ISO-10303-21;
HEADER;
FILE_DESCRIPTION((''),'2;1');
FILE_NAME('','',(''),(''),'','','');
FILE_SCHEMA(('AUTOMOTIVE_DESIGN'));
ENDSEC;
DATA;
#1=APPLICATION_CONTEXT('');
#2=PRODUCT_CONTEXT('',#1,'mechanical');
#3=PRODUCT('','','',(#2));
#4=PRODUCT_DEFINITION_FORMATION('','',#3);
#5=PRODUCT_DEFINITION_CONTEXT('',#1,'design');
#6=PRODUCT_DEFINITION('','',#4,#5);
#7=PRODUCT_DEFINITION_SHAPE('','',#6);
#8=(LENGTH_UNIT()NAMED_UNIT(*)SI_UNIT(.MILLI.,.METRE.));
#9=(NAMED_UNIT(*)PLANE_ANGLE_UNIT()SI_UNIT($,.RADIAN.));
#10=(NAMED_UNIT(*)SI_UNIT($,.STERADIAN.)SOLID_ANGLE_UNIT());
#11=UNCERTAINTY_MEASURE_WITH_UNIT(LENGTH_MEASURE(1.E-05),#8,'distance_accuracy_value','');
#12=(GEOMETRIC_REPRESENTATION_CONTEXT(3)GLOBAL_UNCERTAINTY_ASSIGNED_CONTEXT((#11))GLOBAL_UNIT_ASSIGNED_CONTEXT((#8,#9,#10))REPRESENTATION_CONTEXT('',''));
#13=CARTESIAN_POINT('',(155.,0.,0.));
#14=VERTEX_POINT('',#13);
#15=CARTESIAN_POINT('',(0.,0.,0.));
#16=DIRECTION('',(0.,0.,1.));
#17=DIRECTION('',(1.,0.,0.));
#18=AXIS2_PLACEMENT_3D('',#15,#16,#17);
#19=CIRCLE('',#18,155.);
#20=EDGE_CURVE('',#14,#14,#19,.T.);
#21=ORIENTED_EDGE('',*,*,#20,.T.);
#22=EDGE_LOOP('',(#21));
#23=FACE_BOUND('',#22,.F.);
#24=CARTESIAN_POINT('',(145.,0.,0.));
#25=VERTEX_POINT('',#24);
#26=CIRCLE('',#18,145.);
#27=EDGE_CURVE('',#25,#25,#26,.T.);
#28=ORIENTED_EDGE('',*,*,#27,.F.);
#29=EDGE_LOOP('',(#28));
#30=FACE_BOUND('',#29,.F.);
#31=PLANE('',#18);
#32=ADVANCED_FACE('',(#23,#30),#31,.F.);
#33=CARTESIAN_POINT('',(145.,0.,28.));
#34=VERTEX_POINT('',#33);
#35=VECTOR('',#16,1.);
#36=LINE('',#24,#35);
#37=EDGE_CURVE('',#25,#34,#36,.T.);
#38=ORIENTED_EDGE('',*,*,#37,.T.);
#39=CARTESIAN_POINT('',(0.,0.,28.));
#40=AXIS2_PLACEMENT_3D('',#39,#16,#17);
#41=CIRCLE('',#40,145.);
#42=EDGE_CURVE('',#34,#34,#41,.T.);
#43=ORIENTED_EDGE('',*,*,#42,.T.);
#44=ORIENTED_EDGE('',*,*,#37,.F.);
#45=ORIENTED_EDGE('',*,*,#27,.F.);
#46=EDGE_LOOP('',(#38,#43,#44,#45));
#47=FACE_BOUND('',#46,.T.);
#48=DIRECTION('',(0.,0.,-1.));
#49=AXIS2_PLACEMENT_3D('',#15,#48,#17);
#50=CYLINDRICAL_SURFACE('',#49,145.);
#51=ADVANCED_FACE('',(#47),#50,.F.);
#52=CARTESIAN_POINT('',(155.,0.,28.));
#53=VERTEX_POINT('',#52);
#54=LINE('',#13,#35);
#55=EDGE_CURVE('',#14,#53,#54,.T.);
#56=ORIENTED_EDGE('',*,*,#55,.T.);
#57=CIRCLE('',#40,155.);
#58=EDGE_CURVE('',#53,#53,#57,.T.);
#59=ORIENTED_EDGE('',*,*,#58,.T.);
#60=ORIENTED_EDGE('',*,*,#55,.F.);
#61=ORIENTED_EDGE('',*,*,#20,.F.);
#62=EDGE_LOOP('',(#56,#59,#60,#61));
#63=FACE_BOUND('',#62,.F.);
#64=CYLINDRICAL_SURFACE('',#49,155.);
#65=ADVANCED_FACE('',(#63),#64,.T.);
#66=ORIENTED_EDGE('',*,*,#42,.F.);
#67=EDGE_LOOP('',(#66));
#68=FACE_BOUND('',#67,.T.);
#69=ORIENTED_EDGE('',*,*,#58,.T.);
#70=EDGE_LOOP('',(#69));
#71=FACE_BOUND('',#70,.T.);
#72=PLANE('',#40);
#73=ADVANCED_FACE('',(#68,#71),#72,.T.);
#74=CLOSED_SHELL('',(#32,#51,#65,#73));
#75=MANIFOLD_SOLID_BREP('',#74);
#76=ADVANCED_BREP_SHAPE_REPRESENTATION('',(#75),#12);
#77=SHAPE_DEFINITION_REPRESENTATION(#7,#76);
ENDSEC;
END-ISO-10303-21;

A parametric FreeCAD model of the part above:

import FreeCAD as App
import Part
import Sketcher

doc = App.newDocument("Part")
body = doc.addObject("PartDesign::Body", "Body")

# Sketch on XY plane
sketch1 = doc.addObject("Sketcher::SketchObject", "Sketch")
body.addObject(sketch1)
sketch1.AttachmentSupport = (doc.XY_Plane, [""])
sketch1.MapMode = "FlatFace"
sketch1.addGeometry([
    Part.Circle(App.Vector(0, 0, 0), App.Vector(0, 0, 1), 155),
    Part.Circle(App.Vector(0, 0, 0), App.Vector(0, 0, 1), 145),
], False)
sketch1.addConstraint([
    Sketcher.Constraint("Coincident", 0, 3, -1, 1),
    Sketcher.Constraint("Coincident", 1, 3, -1, 1),
    Sketcher.Constraint("Diameter", 1, 290.0),
    Sketcher.Constraint("Diameter", 0, 310.0),
])
pad1 = doc.addObject("PartDesign::Pad", "Pad")
body.addObject(pad1)
pad1.Profile = sketch1
pad1.Length = 28

doc.recompute()
